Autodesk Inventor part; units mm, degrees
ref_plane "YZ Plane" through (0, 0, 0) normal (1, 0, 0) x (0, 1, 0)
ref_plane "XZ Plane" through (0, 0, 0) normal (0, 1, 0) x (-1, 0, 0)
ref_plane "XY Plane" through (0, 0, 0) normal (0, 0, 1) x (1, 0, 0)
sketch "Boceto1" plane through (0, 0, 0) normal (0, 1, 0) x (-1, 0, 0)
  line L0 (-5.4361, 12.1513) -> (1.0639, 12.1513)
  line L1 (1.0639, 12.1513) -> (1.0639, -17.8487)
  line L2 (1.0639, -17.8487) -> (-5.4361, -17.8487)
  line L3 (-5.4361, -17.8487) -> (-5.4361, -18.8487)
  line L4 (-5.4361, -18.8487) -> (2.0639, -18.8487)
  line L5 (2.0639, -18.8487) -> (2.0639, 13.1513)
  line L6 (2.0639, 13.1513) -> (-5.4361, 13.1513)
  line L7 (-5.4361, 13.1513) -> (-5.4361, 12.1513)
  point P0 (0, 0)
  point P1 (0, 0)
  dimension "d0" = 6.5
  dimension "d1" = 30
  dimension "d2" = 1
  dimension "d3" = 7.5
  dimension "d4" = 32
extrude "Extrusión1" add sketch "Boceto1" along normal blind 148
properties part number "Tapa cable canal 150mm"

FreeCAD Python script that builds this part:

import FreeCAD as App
import Part
import Sketcher
Q = App.Units.Quantity


def add_polygon(sketch, points):
    """Adds a closed chain of lines whose ends are joined by coincident constraints."""
    first, n = sketch.GeometryCount, len(points)
    for a, b in zip(points, points[1:] + points[:1]):
        sketch.addGeometry(Part.LineSegment(App.Vector(*a, 0), App.Vector(*b, 0)), False)
    for i in range(n):
        sketch.addConstraint(Sketcher.Constraint("Coincident", first + i, 2, first + (i + 1) % n, 1))

doc = App.newDocument("Part")
params = doc.addObject("Spreadsheet::Sheet", "Params")
for row, (alias, value) in enumerate([
    ("sketch1_height", "1 mm"),
    ("sketch1_height2", "30 mm"),
    ("sketch1_width", "6.5 mm"),
    ("sketch1_width2", "7.5 mm"),
    ("pad1_length", "148 mm"),
], start=1):
    params.set(f"A{row}", alias)
    params.set(f"B{row}", "=" + value)
    params.setAlias(f"B{row}", alias)

body = doc.addObject("PartDesign::Body", "Body")

# Sketch on XZ plane
sketch1 = body.newObject("Sketcher::SketchObject", "Sketch")
sketch1.AttachmentSupport = (doc.getObject("XZ_Plane"), [""])
sketch1.MapMode = "FlatFace"
add_polygon(sketch1, [(5.4, 13.2), (5.4, 12.2), (-1.1, 12.2), (-1.1, -17.8), (5.4, -17.8), (5.4, -18.8), (-2.1, -18.8), (-2.1, 13.2)])  # lines 0-7
sketch1.addConstraint([
    Sketcher.Constraint("Vertical", 0),
    Sketcher.Constraint("Horizontal", 1),
    Sketcher.Constraint("Vertical", 2),
    Sketcher.Constraint("Horizontal", 3),
    Sketcher.Constraint("Vertical", 4),
    Sketcher.Constraint("Horizontal", 5),
    Sketcher.Constraint("Vertical", 6),
    Sketcher.Constraint("Horizontal", 7),
    Sketcher.Constraint("Vertical", 0, 2, 3, 2),
    Sketcher.Constraint("Equal", 0, 4),
    Sketcher.Constraint("DistanceY", 0, 2, 0, 1, Q("1 mm")),
    Sketcher.Constraint("DistanceY", 2, 2, 2, 1, Q("30 mm")),
    Sketcher.Constraint("DistanceX", 1, 2, 1, 1, Q("6.5 mm")),
    Sketcher.Constraint("DistanceX", 5, 2, 5, 1, Q("7.5 mm")),
    Sketcher.Constraint("DistanceX", -1, 1, 0, 2, Q("5.436 mm")),
    Sketcher.Constraint("DistanceY", -1, 1, 0, 2, Q("12.1513 mm")),
])
sketch1.setExpression("Constraints[18]", "Params.sketch1_height")
sketch1.setExpression("Constraints[19]", "Params.sketch1_height2")
sketch1.setExpression("Constraints[20]", "Params.sketch1_width")
sketch1.setExpression("Constraints[21]", "Params.sketch1_width2")
pad1 = body.newObject("PartDesign::Pad", "Pad")
pad1.Profile = sketch1
pad1.setExpression("Length", "Params.pad1_length")
pad1.Reversed = True

doc.recompute()
